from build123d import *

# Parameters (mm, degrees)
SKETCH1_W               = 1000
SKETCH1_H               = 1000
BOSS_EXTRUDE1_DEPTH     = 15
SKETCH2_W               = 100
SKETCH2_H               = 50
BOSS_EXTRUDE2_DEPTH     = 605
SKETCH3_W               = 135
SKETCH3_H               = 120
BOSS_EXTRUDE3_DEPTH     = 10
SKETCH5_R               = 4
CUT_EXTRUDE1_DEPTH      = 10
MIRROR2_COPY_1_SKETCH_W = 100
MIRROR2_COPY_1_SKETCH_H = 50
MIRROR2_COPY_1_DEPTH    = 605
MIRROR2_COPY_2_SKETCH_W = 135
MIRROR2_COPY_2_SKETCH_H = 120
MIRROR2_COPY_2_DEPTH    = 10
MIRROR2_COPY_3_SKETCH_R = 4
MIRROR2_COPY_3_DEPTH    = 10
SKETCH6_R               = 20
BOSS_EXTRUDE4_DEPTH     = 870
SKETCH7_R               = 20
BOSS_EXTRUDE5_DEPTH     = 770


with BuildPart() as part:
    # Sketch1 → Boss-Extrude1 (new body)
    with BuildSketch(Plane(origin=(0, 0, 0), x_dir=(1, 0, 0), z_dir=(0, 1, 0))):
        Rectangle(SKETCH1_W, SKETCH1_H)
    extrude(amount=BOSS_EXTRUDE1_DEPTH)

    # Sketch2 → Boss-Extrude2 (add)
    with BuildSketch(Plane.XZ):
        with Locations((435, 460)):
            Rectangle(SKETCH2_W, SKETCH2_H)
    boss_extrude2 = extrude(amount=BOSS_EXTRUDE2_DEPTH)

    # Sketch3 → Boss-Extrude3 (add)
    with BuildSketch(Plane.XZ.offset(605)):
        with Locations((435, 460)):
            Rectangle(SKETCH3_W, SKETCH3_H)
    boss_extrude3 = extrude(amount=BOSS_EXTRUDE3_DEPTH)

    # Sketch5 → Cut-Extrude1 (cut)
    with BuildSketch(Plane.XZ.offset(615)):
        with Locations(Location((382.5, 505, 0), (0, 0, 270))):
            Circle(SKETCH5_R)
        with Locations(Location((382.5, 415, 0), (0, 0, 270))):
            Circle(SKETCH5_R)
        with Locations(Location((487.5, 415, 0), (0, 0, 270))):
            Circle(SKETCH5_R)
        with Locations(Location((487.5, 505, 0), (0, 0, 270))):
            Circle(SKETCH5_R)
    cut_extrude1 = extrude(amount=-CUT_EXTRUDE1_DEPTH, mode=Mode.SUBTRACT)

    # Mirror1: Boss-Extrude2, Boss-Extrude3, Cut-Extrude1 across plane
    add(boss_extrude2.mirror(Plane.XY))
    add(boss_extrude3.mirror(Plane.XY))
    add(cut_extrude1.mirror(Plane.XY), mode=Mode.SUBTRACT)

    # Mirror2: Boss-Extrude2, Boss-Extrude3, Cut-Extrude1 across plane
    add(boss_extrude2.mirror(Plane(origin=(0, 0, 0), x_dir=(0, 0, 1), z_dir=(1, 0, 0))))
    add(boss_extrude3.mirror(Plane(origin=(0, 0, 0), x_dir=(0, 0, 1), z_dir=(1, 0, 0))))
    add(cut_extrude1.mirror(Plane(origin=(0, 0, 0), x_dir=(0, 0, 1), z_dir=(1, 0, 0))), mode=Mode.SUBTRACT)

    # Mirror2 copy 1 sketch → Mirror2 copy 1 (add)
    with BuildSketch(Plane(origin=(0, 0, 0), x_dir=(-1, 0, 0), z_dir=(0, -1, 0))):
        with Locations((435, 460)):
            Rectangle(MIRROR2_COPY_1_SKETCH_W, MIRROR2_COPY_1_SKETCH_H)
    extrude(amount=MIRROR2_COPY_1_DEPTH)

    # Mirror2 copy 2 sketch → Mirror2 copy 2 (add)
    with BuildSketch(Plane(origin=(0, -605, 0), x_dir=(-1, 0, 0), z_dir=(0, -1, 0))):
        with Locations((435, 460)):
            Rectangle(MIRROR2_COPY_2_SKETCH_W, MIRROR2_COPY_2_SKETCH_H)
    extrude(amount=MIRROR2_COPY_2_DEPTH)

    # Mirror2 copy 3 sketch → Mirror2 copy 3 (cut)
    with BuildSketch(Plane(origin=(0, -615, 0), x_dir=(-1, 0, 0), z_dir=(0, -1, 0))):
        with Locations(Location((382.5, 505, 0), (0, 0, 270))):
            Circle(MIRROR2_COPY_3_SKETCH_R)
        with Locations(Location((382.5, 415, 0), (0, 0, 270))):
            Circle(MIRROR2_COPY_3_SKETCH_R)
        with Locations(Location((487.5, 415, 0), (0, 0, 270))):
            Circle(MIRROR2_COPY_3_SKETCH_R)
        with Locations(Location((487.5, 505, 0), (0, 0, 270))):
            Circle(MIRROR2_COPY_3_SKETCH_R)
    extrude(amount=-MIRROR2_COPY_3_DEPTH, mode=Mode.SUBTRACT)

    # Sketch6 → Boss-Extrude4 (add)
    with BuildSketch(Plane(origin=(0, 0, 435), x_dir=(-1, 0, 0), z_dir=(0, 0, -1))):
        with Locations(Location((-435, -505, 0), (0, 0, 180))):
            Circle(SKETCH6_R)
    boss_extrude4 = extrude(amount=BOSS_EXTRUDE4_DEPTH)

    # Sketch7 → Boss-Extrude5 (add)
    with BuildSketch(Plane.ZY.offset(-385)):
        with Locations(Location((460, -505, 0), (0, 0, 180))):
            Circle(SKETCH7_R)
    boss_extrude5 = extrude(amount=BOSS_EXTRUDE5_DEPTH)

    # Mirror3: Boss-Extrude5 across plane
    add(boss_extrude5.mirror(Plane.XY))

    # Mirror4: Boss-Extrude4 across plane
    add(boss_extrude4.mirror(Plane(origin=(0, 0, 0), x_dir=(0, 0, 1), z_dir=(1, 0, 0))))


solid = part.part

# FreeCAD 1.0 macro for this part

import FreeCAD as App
import Part
import Sketcher


def add_polygon(sketch, points):
    """Adds a closed chain of lines whose ends are joined by coincident constraints."""
    first, n = sketch.GeometryCount, len(points)
    for a, b in zip(points, points[1:] + points[:1]):
        sketch.addGeometry(Part.LineSegment(App.Vector(*a, 0), App.Vector(*b, 0)), False)
    for i in range(n):
        sketch.addConstraint(Sketcher.Constraint("Coincident", first + i, 2, first + (i + 1) % n, 1))

doc = App.newDocument("Part")
body = doc.addObject("PartDesign::Body", "Body")

# Sketch on XZ plane
sketch1 = doc.addObject("Sketcher::SketchObject", "Sketch")
body.addObject(sketch1)
sketch1.AttachmentSupport = (doc.XZ_Plane, [""])
sketch1.MapMode = "FlatFace"
add_polygon(sketch1, [(-500, -500), (-500, 500), (500, 500), (500, -500)])  # lines 0-3
sketch1.addConstraint(Sketcher.Constraint("Vertical", 0))
sketch1.addConstraint(Sketcher.Constraint("Horizontal", 1))
sketch1.addConstraint(Sketcher.Constraint("Vertical", 2))
sketch1.addConstraint(Sketcher.Constraint("Horizontal", 3))
sketch1.addConstraint(Sketcher.Constraint("Symmetric", 0, 2, 2, 2, -1, 1))
sketch1.addConstraint(Sketcher.Constraint("Equal", 3, 0))
sketch1.addConstraint(Sketcher.Constraint("DistanceX", 1, 1, 1, 2, 1000.0))
pad1 = doc.addObject("PartDesign::Pad", "Pad")
body.addObject(pad1)
pad1.Profile = sketch1
pad1.Length = 15
pad1.Reversed = True

# Sketch on XZ plane
sketch2 = doc.addObject("Sketcher::SketchObject", "Sketch001")
body.addObject(sketch2)
sketch2.AttachmentSupport = (doc.XZ_Plane, [""])
sketch2.MapMode = "FlatFace"
add_polygon(sketch2, [(385, 485), (385, 435), (485, 435), (485, 485)])  # lines 0-3
sketch2.addConstraint(Sketcher.Constraint("Vertical", 0))
sketch2.addConstraint(Sketcher.Constraint("Horizontal", 1))
sketch2.addConstraint(Sketcher.Constraint("Vertical", 2))
sketch2.addConstraint(Sketcher.Constraint("Horizontal", 3))
sketch2.addConstraint(Sketcher.Constraint("DistanceX", 1, 1, 1, 2, 100.0))
sketch2.addConstraint(Sketcher.Constraint("DistanceY", 0, 2, 0, 1, 50.0))
sketch2.addConstraint(Sketcher.Constraint("DistanceX", -1, 1, 0, 2, 385.0))
sketch2.addConstraint(Sketcher.Constraint("DistanceY", -1, 1, 0, 2, 435.0))
pad2 = doc.addObject("PartDesign::Pad", "Pad001")
body.addObject(pad2)
pad2.Profile = sketch2
pad2.Length = 605

# Sketch on XZ plane
sketch3 = doc.addObject("Sketcher::SketchObject", "Sketch002")
body.addObject(sketch3)
sketch3.AttachmentSupport = (doc.XZ_Plane, [""])
sketch3.MapMode = "FlatFace"
sketch3.AttachmentOffset = App.Placement(App.Vector(0, 0, 605), App.Rotation())
add_polygon(sketch3, [(368, 520), (368, 400), (502, 400), (502, 520)])  # lines 0-3
sketch3.addConstraint(Sketcher.Constraint("Vertical", 0))
sketch3.addConstraint(Sketcher.Constraint("Horizontal", 1))
sketch3.addConstraint(Sketcher.Constraint("Vertical", 2))
sketch3.addConstraint(Sketcher.Constraint("Horizontal", 3))
sketch3.addConstraint(Sketcher.Constraint("DistanceX", 1, 1, 1, 2, 135.0))
sketch3.addConstraint(Sketcher.Constraint("DistanceY", 0, 2, 0, 1, 120.0))
sketch3.addConstraint(Sketcher.Constraint("DistanceY", -1, 1, 0, 2, 400.0))
sketch3.addConstraint(Sketcher.Constraint("DistanceX", -1, 1, 0, 2, 367.5))
pad3 = doc.addObject("PartDesign::Pad", "Pad002")
body.addObject(pad3)
pad3.Profile = sketch3
pad3.Length = 10

# Sketch on XZ plane
sketch4 = doc.addObject("Sketcher::SketchObject", "Sketch003")
body.addObject(sketch4)
sketch4.AttachmentSupport = (doc.XZ_Plane, [""])
sketch4.MapMode = "FlatFace"
sketch4.AttachmentOffset = App.Placement(App.Vector(0, 0, 615), App.Rotation())
sketch4.addGeometry(Part.Circle(App.Vector(382.5, 505, 0), App.Vector(0, 0, 1), 4), False)
sketch4.addGeometry(Part.Circle(App.Vector(382.5, 415, 0), App.Vector(0, 0, 1), 4), False)
sketch4.addGeometry(Part.Circle(App.Vector(487.5, 415, 0), App.Vector(0, 0, 1), 4), False)
sketch4.addGeometry(Part.Circle(App.Vector(487.5, 505, 0), App.Vector(0, 0, 1), 4), False)
sketch4.addConstraint(Sketcher.Constraint("Equal", 0, 1))
sketch4.addConstraint(Sketcher.Constraint("Equal", 1, 2))
sketch4.addConstraint(Sketcher.Constraint("Equal", 2, 3))
sketch4.addConstraint(Sketcher.Constraint("Horizontal", 1, 3, 2, 3))
sketch4.addConstraint(Sketcher.Constraint("Horizontal", 0, 3, 3, 3))
sketch4.addConstraint(Sketcher.Constraint("Vertical", 0, 3, 1, 3))
sketch4.addConstraint(Sketcher.Constraint("Vertical", 2, 3, 3, 3))
sketch4.addConstraint(Sketcher.Constraint("Diameter", 0, 8.0))
sketch4.addConstraint(Sketcher.Constraint("DistanceY", -1, 1, 0, 3, 505.0))
sketch4.addConstraint(Sketcher.Constraint("DistanceY", -1, 1, 1, 3, 415.0))
sketch4.addConstraint(Sketcher.Constraint("DistanceX", 1, 3, 2, 3, 105.0))
sketch4.addConstraint(Sketcher.Constraint("DistanceX", -1, 1, 0, 3, 382.5))
pocket1 = doc.addObject("PartDesign::Pocket", "Pocket")
body.addObject(pocket1)
pocket1.Profile = sketch4
pocket1.Length = 10
doc.recompute()

mirrored = doc.addObject("PartDesign::Mirrored", "Mirrored")
body.addObject(mirrored)
mirrored.Originals = [pad2, pad3, pocket1]
mirrored.MirrorPlane = (doc.XY_Plane, [""])
body.Tip = mirrored
doc.recompute()

mirrored2 = doc.addObject("PartDesign::Mirrored", "Mirrored001")
body.addObject(mirrored2)
mirrored2.Originals = [pad2, pad3, pocket1]
mirrored2.MirrorPlane = (doc.YZ_Plane, [""])
body.Tip = mirrored2

# Sketch on XZ plane
sketch5 = doc.addObject("Sketcher::SketchObject", "Sketch004")
body.addObject(sketch5)
sketch5.AttachmentSupport = (doc.XZ_Plane, [""])
sketch5.MapMode = "FlatFace"
add_polygon(sketch5, [(-385, -485), (-385, -435), (-485, -435), (-485, -485)])  # lines 0-3
sketch5.addConstraint(Sketcher.Constraint("Vertical", 0))
sketch5.addConstraint(Sketcher.Constraint("Horizontal", 1))
sketch5.addConstraint(Sketcher.Constraint("Vertical", 2))
sketch5.addConstraint(Sketcher.Constraint("Horizontal", 3))
sketch5.addConstraint(Sketcher.Constraint("DistanceX", 1, 2, 1, 1, 100.0))
sketch5.addConstraint(Sketcher.Constraint("DistanceY", 0, 1, 0, 2, 50.0))
sketch5.addConstraint(Sketcher.Constraint("DistanceX", 0, 2, -1, 1, 385.0))
sketch5.addConstraint(Sketcher.Constraint("DistanceY", 0, 2, -1, 1, 435.0))
pad4 = doc.addObject("PartDesign::Pad", "Pad003")
body.addObject(pad4)
pad4.Profile = sketch5
pad4.Length = 605

# Sketch on XZ plane
sketch6 = doc.addObject("Sketcher::SketchObject", "Sketch005")
body.addObject(sketch6)
sketch6.AttachmentSupport = (doc.XZ_Plane, [""])
sketch6.MapMode = "FlatFace"
sketch6.AttachmentOffset = App.Placement(App.Vector(0, 0, 605), App.Rotation())
add_polygon(sketch6, [(-368, -520), (-368, -400), (-502, -400), (-502, -520)])  # lines 0-3
sketch6.addConstraint(Sketcher.Constraint("Vertical", 0))
sketch6.addConstraint(Sketcher.Constraint("Horizontal", 1))
sketch6.addConstraint(Sketcher.Constraint("Vertical", 2))
sketch6.addConstraint(Sketcher.Constraint("Horizontal", 3))
sketch6.addConstraint(Sketcher.Constraint("DistanceX", 1, 2, 1, 1, 135.0))
sketch6.addConstraint(Sketcher.Constraint("DistanceY", 0, 1, 0, 2, 120.0))
sketch6.addConstraint(Sketcher.Constraint("DistanceY", 0, 2, -1, 1, 400.0))
sketch6.addConstraint(Sketcher.Constraint("DistanceX", 0, 2, -1, 1, 367.5))
pad5 = doc.addObject("PartDesign::Pad", "Pad004")
body.addObject(pad5)
pad5.Profile = sketch6
pad5.Length = 10

# Sketch on XZ plane
sketch7 = doc.addObject("Sketcher::SketchObject", "Sketch006")
body.addObject(sketch7)
sketch7.AttachmentSupport = (doc.XZ_Plane, [""])
sketch7.MapMode = "FlatFace"
sketch7.AttachmentOffset = App.Placement(App.Vector(0, 0, 615), App.Rotation())
sketch7.addGeometry(Part.Circle(App.Vector(-382.5, -505, 0), App.Vector(0, 0, 1), 4), False)
sketch7.addGeometry(Part.Circle(App.Vector(-382.5, -415, 0), App.Vector(0, 0, 1), 4), False)
sketch7.addGeometry(Part.Circle(App.Vector(-487.5, -415, 0), App.Vector(0, 0, 1), 4), False)
sketch7.addGeometry(Part.Circle(App.Vector(-487.5, -505, 0), App.Vector(0, 0, 1), 4), False)
sketch7.addConstraint(Sketcher.Constraint("Equal", 0, 1))
sketch7.addConstraint(Sketcher.Constraint("Equal", 1, 2))
sketch7.addConstraint(Sketcher.Constraint("Equal", 2, 3))
sketch7.addConstraint(Sketcher.Constraint("Horizontal", 1, 3, 2, 3))
sketch7.addConstraint(Sketcher.Constraint("Horizontal", 0, 3, 3, 3))
sketch7.addConstraint(Sketcher.Constraint("Vertical", 0, 3, 1, 3))
sketch7.addConstraint(Sketcher.Constraint("Vertical", 2, 3, 3, 3))
sketch7.addConstraint(Sketcher.Constraint("Diameter", 0, 8.0))
sketch7.addConstraint(Sketcher.Constraint("DistanceY", 0, 3, -1, 1, 505.0))
sketch7.addConstraint(Sketcher.Constraint("DistanceY", 1, 3, -1, 1, 415.0))
sketch7.addConstraint(Sketcher.Constraint("DistanceX", 2, 3, 1, 3, 105.0))
sketch7.addConstraint(Sketcher.Constraint("DistanceX", 0, 3, -1, 1, 382.5))
pocket2 = doc.addObject("PartDesign::Pocket", "Pocket001")
body.addObject(pocket2)
pocket2.Profile = sketch7
pocket2.Length = 10

# Sketch on XY plane
sketch8 = doc.addObject("Sketcher::SketchObject", "Sketch007")
body.addObject(sketch8)
sketch8.AttachmentSupport = (doc.XY_Plane, [""])
sketch8.MapMode = "FlatFace"
sketch8.AttachmentOffset = App.Placement(App.Vector(0, 0, 435), App.Rotation())
sketch8.addGeometry(Part.Circle(App.Vector(435, -505, 0), App.Vector(0, 0, 1), 20), False)
sketch8.addConstraint(Sketcher.Constraint("Diameter", 0, 40.0))
sketch8.addConstraint(Sketcher.Constraint("DistanceX", -1, 1, 0, 3, 435.0))
sketch8.addConstraint(Sketcher.Constraint("DistanceY", 0, 3, -1, 1, 505.0))
pad6 = doc.addObject("PartDesign::Pad", "Pad005")
body.addObject(pad6)
pad6.Profile = sketch8
pad6.Length = 870
pad6.Reversed = True

# Sketch on YZ plane
sketch9 = doc.addObject("Sketcher::SketchObject", "Sketch008")
body.addObject(sketch9)
sketch9.AttachmentSupport = (doc.YZ_Plane, [""])
sketch9.MapMode = "FlatFace"
sketch9.AttachmentOffset = App.Placement(App.Vector(0, 0, 385), App.Rotation())
sketch9.addGeometry(Part.Circle(App.Vector(-505, 460, 0), App.Vector(0, 0, 1), 20), False)
sketch9.addConstraint(Sketcher.Constraint("Diameter", 0, 40.0))
sketch9.addConstraint(Sketcher.Constraint("DistanceX", 0, 3, -1, 1, 505.0))
sketch9.addConstraint(Sketcher.Constraint("DistanceY", -1, 1, 0, 3, 460.0))
pad7 = doc.addObject("PartDesign::Pad", "Pad006")
body.addObject(pad7)
pad7.Profile = sketch9
pad7.Length = 770
pad7.Reversed = True
doc.recompute()

mirrored3 = doc.addObject("PartDesign::Mirrored", "Mirrored002")
body.addObject(mirrored3)
mirrored3.Originals = [pad7]
mirrored3.MirrorPlane = (doc.XY_Plane, [""])
body.Tip = mirrored3
doc.recompute()

mirrored4 = doc.addObject("PartDesign::Mirrored", "Mirrored003")
body.addObject(mirrored4)
mirrored4.Originals = [pad6]
mirrored4.MirrorPlane = (doc.YZ_Plane, [""])
body.Tip = mirrored4

doc.recompute()
